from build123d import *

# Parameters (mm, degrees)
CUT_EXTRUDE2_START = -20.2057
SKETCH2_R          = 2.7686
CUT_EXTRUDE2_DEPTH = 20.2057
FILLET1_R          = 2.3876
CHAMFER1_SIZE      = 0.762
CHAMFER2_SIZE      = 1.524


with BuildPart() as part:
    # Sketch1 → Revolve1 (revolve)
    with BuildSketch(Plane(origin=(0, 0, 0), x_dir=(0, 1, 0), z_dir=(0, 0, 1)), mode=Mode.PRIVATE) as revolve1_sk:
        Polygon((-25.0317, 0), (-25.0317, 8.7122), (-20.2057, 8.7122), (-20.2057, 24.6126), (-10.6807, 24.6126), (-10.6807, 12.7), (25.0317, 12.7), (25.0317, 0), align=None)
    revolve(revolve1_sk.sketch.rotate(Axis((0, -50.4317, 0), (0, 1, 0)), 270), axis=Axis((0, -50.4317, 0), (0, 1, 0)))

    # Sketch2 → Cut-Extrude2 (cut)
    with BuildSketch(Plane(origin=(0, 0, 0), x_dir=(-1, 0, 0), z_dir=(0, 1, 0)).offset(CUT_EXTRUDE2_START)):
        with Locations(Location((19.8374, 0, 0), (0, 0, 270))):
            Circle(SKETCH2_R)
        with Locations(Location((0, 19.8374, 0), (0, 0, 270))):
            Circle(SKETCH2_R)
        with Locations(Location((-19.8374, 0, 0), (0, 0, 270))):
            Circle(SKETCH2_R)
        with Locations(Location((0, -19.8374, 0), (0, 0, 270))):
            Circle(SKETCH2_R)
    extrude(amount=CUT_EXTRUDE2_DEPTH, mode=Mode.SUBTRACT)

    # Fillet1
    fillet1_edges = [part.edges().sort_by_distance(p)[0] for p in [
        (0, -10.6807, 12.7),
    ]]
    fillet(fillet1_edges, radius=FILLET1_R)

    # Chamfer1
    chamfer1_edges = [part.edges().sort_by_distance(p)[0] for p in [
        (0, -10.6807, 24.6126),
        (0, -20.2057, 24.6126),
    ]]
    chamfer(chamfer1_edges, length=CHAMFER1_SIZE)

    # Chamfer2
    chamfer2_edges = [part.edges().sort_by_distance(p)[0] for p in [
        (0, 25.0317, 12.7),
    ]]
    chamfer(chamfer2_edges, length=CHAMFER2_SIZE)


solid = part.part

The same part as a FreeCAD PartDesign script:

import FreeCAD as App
import Part
import Sketcher
from FreeCAD import Vector
Q = App.Units.Quantity


def edges_at(feature, points):
    """Names of the edges that pass closest to the given points."""
    edges = feature.Shape.Edges
    near = lambda p: min(range(len(edges)), key=lambda i: edges[i].distToShape(Part.Vertex(*p))[0])
    return sorted({f"Edge{near(p) + 1}" for p in points})


def add_polygon(sketch, points):
    """Adds a closed chain of lines whose ends are joined by coincident constraints."""
    first, n = sketch.GeometryCount, len(points)
    for a, b in zip(points, points[1:] + points[:1]):
        sketch.addGeometry(Part.LineSegment(App.Vector(*a, 0), App.Vector(*b, 0)), False)
    for i in range(n):
        sketch.addConstraint(Sketcher.Constraint("Coincident", first + i, 2, first + (i + 1) % n, 1))

doc = App.newDocument("Part")
params = doc.addObject("Spreadsheet::Sheet", "Params")
for row, (alias, value) in enumerate([
    ("sketch1_width", "0.5 in"),
    ("sketch1_height", "0.19 in"),
    ("sketch1_width2", "0.343 in"),
    ("sketch1_width3", "0.469 in"),
    ("sketch1_height2", "1.971 in"),
    ("revolution_angle", "360 deg"),
    ("sketch2_diameter", "0.218 in"),
    ("pocket1_length", "0.7955 in"),
    ("fillet_radius", "0.094 in"),
    ("chamfer_size", "0.03 in"),
    ("chamfer2_size", "0.06 in"),
], start=1):
    params.set(f"A{row}", alias)
    params.set(f"B{row}", "=" + value)
    params.setAlias(f"B{row}", alias)

body = doc.addObject("PartDesign::Body", "Body")

# Sketch on XY plane
sketch1 = doc.addObject("Sketcher::SketchObject", "Sketch")
body.addObject(sketch1)
sketch1.AttachmentSupport = (doc.XY_Plane, [""])
sketch1.MapMode = "FlatFace"
add_polygon(sketch1, [(-8.7, -25), (0, -25), (0, 25), (-12.7, 25), (-12.7, -10.7), (-24.6, -10.7), (-24.6, -20.2), (-8.7, -20.2)])  # lines 0-7
sketch1.addConstraint(Sketcher.Constraint("Horizontal", 0))
sketch1.addConstraint(Sketcher.Constraint("Vertical", 1))
sketch1.addConstraint(Sketcher.Constraint("Horizontal", 2))
sketch1.addConstraint(Sketcher.Constraint("Vertical", 3))
sketch1.addConstraint(Sketcher.Constraint("Horizontal", 4))
sketch1.addConstraint(Sketcher.Constraint("Vertical", 5))
sketch1.addConstraint(Sketcher.Constraint("Horizontal", 6))
sketch1.addConstraint(Sketcher.Constraint("Vertical", 7))
sketch1.addConstraint(Sketcher.Constraint("Symmetric", 0, 2, 1, 2, -1, 1))
sketch1.addConstraint(Sketcher.Constraint("DistanceX", 2, 2, 2, 1, Q("0.5 in")))
sketch1.addConstraint(Sketcher.Constraint("DistanceY", 7, 2, 7, 1, Q("0.19 in")))
sketch1.addConstraint(Sketcher.Constraint("DistanceX", 0, 1, 0, 2, Q("0.343 in")))
sketch1.addConstraint(Sketcher.Constraint("DistanceX", 4, 2, 4, 1, Q("0.469 in")))
sketch1.addConstraint(Sketcher.Constraint("DistanceY", 1, 1, 1, 2, Q("1.971 in")))
sketch1.addConstraint(Sketcher.Constraint("DistanceY", 3, 2, 3, 1, Q("1.406 in")))
sketch1.setExpression("Constraints[17]", "Params.sketch1_width")
sketch1.setExpression("Constraints[18]", "Params.sketch1_height")
sketch1.setExpression("Constraints[19]", "Params.sketch1_width2")
sketch1.setExpression("Constraints[20]", "Params.sketch1_width3")
sketch1.setExpression("Constraints[21]", "Params.sketch1_height2")
revolution = doc.addObject("PartDesign::Revolution", "Revolution")
body.addObject(revolution)
revolution.Profile = sketch1
revolution.ReferenceAxis = (sketch1, ["V_Axis"])
revolution.setExpression("Angle", "Params.revolution_angle")

# Sketch on XZ plane
sketch2 = doc.addObject("Sketcher::SketchObject", "Sketch001")
body.addObject(sketch2)
sketch2.AttachmentSupport = (doc.XZ_Plane, [""])
sketch2.MapMode = "FlatFace"
sketch2.AttachmentOffset = App.Placement(Vector(0, 0, 0.7955 * 25.4), App.Rotation())
sketch2.addGeometry(Part.Circle(Vector(-19.8, 0, 0), Vector(0, 0, 1), 2.8), False)
sketch2.addGeometry(Part.Circle(Vector(0, 19.8, 0), Vector(0, 0, 1), 2.8), False)
sketch2.addGeometry(Part.Circle(Vector(19.8, 0, 0), Vector(0, 0, 1), 2.8), False)
sketch2.addGeometry(Part.Circle(Vector(0, -19.8, 0), Vector(0, 0, 1), 2.8), False)
sketch2.addConstraint(Sketcher.Constraint("Equal", 0, 1))
sketch2.addConstraint(Sketcher.Constraint("Equal", 1, 2))
sketch2.addConstraint(Sketcher.Constraint("Equal", 2, 3))
sketch2.addConstraint(Sketcher.Constraint("Symmetric", 0, 3, 2, 3, -1, 1))
sketch2.addConstraint(Sketcher.Constraint("Symmetric", 1, 3, 3, 3, -1, 1))
sketch2.addConstraint(Sketcher.Constraint("PointOnObject", 0, 3, -1))
sketch2.addConstraint(Sketcher.Constraint("PointOnObject", 1, 3, -2))
sketch2.addConstraint(Sketcher.Constraint("Diameter", 0, Q("0.218 in")))
sketch2.addConstraint(Sketcher.Constraint("DistanceX", 0, 3, -1, 1, Q("0.781 in")))
sketch2.addConstraint(Sketcher.Constraint("DistanceY", -1, 1, 1, 3, Q("0.781 in")))
sketch2.setExpression("Constraints[7]", "Params.sketch2_diameter")
pocket1 = doc.addObject("PartDesign::Pocket", "Pocket")
body.addObject(pocket1)
pocket1.Profile = sketch2
pocket1.setExpression("Length", "Params.pocket1_length")
doc.recompute()

fillet = doc.addObject("PartDesign::Fillet", "Fillet")
body.addObject(fillet)
fillet.Base = (pocket1, edges_at(pocket1, [(0, -10.681, 12.7)]))
fillet.setExpression("Radius", "Params.fillet_radius")
doc.recompute()

chamfer = doc.addObject("PartDesign::Chamfer", "Chamfer")
body.addObject(chamfer)
chamfer.Base = (fillet, edges_at(fillet, [(0, -10.681, 24.613), (0, -20.206, 24.613)]))
chamfer.setExpression("Size", "Params.chamfer_size")
doc.recompute()

chamfer2 = doc.addObject("PartDesign::Chamfer", "Chamfer001")
body.addObject(chamfer2)
chamfer2.Base = (chamfer, edges_at(chamfer, [(0, 25.032, 12.7)]))
chamfer2.setExpression("Size", "Params.chamfer2_size")

doc.recompute()
